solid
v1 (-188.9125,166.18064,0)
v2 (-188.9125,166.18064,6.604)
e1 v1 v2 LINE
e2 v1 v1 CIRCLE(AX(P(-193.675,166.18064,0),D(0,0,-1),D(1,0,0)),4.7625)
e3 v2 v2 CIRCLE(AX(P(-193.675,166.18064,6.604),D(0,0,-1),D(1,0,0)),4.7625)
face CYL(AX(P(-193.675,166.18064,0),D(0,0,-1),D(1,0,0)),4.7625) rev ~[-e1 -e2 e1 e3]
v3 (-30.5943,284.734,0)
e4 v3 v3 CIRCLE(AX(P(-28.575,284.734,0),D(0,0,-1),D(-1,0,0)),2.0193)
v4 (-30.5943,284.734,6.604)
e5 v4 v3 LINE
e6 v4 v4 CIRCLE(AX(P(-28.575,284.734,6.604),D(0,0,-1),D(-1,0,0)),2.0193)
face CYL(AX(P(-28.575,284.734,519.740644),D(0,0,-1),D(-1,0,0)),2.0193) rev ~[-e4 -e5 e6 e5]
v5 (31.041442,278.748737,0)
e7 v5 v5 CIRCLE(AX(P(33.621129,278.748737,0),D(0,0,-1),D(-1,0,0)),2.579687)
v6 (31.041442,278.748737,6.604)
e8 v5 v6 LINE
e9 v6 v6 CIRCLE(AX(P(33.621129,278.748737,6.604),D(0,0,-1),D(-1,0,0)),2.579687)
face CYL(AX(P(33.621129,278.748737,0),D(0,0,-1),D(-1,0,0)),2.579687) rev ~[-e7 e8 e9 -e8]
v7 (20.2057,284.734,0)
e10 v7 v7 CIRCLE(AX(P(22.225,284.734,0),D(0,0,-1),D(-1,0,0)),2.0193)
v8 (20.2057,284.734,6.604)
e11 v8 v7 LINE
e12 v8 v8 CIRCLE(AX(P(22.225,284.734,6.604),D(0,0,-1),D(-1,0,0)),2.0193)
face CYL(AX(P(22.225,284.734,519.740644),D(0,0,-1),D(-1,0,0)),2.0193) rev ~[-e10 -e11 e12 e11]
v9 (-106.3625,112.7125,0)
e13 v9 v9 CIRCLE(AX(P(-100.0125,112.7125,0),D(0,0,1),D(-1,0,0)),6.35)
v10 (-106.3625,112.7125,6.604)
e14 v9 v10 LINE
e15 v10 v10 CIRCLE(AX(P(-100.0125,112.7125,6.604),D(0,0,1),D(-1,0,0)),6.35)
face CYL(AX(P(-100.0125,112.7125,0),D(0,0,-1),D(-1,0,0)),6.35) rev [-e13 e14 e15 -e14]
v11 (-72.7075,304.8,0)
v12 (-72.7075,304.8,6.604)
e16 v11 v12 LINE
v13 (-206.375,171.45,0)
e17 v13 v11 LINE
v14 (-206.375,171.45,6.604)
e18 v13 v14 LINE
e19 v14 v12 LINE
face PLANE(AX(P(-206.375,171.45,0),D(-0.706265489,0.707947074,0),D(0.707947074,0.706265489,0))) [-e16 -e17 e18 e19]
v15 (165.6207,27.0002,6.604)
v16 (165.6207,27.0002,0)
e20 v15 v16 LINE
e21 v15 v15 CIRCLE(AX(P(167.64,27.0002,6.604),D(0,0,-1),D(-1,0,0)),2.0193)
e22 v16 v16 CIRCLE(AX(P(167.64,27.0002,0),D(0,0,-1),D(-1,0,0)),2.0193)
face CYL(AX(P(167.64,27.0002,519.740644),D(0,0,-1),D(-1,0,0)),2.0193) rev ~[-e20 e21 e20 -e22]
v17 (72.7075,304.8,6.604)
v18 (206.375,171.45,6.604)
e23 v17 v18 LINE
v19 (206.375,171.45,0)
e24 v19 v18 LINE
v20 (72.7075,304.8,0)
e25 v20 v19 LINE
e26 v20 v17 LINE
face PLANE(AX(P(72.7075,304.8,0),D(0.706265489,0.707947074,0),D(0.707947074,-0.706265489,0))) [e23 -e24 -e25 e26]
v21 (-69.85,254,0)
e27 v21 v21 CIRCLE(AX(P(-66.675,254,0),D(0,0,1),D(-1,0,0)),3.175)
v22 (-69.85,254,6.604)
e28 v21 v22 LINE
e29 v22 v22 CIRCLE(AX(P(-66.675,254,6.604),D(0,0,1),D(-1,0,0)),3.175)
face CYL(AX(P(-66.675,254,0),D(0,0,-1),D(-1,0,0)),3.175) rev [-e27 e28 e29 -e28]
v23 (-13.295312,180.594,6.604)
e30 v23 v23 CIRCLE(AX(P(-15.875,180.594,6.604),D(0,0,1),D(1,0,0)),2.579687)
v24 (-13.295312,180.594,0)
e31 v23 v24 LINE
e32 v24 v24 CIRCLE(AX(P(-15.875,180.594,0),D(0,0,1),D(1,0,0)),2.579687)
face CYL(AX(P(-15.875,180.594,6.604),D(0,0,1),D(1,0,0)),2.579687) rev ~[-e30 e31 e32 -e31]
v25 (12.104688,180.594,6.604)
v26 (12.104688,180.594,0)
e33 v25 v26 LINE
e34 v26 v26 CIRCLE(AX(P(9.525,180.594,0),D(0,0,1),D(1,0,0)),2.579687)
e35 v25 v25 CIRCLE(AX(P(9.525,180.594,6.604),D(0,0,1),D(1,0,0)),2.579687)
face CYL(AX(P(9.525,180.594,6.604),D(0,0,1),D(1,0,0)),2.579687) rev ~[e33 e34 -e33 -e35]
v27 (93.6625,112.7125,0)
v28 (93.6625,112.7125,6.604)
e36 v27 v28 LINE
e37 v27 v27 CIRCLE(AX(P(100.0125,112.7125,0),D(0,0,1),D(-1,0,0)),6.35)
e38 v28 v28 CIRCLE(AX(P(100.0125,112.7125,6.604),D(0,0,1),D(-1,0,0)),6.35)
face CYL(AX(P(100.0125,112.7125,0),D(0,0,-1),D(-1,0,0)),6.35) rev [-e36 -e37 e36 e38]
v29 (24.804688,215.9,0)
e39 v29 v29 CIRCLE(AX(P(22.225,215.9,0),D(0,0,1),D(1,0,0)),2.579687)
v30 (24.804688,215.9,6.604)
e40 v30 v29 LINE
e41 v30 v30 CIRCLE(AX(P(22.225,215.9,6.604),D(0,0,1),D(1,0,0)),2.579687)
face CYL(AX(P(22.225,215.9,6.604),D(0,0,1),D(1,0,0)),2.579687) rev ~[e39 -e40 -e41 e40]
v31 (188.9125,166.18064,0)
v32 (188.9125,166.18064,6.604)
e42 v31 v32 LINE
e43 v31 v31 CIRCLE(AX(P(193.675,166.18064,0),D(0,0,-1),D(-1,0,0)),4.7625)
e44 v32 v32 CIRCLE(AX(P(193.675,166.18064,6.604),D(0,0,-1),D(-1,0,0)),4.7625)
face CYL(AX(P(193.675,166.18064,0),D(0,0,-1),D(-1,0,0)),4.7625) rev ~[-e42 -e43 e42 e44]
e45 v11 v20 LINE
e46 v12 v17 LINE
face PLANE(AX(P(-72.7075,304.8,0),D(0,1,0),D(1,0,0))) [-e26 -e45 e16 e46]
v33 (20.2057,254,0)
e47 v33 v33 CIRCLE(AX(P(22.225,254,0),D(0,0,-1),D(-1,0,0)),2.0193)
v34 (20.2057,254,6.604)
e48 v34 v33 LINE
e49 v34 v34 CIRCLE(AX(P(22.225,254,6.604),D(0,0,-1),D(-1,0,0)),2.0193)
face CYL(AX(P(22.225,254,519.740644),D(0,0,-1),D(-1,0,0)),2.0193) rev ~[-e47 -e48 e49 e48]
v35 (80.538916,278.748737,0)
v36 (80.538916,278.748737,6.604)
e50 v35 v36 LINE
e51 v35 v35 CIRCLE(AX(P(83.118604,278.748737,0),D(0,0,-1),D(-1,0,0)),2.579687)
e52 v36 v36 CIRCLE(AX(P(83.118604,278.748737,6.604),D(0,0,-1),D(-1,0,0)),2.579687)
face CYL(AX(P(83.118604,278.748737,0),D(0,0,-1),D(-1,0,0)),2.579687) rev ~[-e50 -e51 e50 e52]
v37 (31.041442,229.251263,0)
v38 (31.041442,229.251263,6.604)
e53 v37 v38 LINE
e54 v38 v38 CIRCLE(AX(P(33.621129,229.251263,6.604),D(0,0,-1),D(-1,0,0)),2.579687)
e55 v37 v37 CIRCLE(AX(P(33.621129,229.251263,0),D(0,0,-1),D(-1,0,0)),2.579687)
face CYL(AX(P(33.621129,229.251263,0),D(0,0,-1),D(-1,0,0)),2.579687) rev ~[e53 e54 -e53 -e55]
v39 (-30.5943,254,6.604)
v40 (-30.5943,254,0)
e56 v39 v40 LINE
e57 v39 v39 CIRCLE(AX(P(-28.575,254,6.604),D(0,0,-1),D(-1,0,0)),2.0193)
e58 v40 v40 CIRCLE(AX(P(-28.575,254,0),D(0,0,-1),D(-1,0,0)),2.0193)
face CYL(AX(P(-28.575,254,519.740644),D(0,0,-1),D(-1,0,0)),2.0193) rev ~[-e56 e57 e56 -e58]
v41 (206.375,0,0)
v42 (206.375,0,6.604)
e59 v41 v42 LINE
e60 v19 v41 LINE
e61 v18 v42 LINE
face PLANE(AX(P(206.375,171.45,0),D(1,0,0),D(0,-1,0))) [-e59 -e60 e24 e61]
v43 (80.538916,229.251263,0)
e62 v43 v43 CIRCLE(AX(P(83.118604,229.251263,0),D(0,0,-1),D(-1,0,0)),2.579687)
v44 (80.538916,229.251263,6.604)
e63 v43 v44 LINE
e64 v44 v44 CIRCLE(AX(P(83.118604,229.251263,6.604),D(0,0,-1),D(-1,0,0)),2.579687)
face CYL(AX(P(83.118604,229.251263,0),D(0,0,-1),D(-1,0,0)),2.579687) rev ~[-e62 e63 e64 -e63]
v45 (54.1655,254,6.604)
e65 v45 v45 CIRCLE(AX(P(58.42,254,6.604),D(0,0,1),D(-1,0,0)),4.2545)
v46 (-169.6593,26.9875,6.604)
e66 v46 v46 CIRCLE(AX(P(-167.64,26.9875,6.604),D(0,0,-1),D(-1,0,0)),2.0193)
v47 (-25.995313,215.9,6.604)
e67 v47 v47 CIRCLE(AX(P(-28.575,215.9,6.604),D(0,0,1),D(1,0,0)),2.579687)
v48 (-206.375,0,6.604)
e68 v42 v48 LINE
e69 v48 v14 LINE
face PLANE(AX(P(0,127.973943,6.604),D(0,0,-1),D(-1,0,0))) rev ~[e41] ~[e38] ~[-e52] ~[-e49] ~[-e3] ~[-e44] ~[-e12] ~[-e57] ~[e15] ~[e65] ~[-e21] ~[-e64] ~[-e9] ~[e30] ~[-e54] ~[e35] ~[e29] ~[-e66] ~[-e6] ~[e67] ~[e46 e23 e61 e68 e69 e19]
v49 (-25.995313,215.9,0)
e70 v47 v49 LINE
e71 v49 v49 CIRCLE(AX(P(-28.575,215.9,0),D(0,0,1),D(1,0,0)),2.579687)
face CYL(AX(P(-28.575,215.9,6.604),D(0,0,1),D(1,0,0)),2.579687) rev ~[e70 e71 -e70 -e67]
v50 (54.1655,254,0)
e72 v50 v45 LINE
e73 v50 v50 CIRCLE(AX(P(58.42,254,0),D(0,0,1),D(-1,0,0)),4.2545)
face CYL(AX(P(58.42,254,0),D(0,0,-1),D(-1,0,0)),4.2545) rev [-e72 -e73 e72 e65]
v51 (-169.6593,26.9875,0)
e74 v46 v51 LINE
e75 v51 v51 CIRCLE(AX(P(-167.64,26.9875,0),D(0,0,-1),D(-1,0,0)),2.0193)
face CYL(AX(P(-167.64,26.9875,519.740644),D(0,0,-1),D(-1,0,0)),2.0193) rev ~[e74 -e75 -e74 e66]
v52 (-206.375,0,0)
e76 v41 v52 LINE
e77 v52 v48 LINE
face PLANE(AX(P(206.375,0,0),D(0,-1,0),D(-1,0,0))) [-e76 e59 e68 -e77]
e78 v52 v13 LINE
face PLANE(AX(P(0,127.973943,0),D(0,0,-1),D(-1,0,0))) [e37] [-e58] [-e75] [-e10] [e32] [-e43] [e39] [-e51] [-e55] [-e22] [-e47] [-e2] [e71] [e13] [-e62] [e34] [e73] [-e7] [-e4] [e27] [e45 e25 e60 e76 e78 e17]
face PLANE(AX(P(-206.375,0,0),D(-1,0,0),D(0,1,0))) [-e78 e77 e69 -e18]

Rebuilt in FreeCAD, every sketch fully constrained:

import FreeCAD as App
import Part
import Sketcher
from FreeCAD import Vector
Q = App.Units.Quantity

doc = App.newDocument("Part")
params = doc.addObject("Spreadsheet::Sheet", "Params")
for row, (alias, value) in enumerate([
    ("sketch1_diameter", "0.5 in"),
    ("sketch1_diameter2", "0.25 in"),
    ("sketch1_diameter3", "0.335 in"),
    ("sketch1_width", "16.25 in"),
    ("sketch1_height", "6.75 in"),
    ("pad1_length", "0.26 in"),
    ("sketch2_diameter", "0.159 in"),
    ("hole_diameter", "0.159 in"),
    ("sketch3_diameter", "0.203125 in"),
    ("sketch4_diameter", "0.203125 in"),
    ("sketch5_diameter", "0.375 in"),
], start=1):
    params.set(f"A{row}", alias)
    params.set(f"B{row}", "=" + value)
    params.setAlias(f"B{row}", alias)

body = doc.addObject("PartDesign::Body", "Body")

# Sketch on XY plane
sketch1 = doc.addObject("Sketcher::SketchObject", "Sketch")
body.addObject(sketch1)
sketch1.AttachmentSupport = (doc.XY_Plane, [""])
sketch1.MapMode = "FlatFace"
sketch1.addGeometry([
    Part.LineSegment(Vector(-206.375, 0, 0), Vector(206.375, 0, 0)),  # 0
    Part.LineSegment(Vector(206.375, 0, 0), Vector(206.375, 171.45, 0)),  # 1
    Part.LineSegment(Vector(206.375, 171.45, 0), Vector(72.7075, 304.8, 0)),  # 2
    Part.LineSegment(Vector(72.7075, 304.8, 0), Vector(-72.7075, 304.8, 0)),  # 3
    Part.LineSegment(Vector(-72.7075, 304.8, 0), Vector(-206.375, 171.45, 0)),  # 4
    Part.LineSegment(Vector(-206.375, 171.45, 0), Vector(-206.375, 0, 0)),  # 5
    Part.Circle(Vector(100.0125, 112.7125, 0), Vector(0, 0, 1), 6.35),  # 6
    Part.Circle(Vector(-100.0125, 112.7125, 0), Vector(0, 0, 1), 6.35),  # 7
    Part.Circle(Vector(58.42, 254, 0), Vector(0, 0, 1), 4.2545),  # 8
    Part.Circle(Vector(-66.675, 254, 0), Vector(0, 0, 1), 3.175),  # 9
], False)
sketch1.addConstraint([
    Sketcher.Constraint("Coincident", 0, 2, 1, 1),
    Sketcher.Constraint("Coincident", 1, 2, 2, 1),
    Sketcher.Constraint("Coincident", 2, 2, 3, 1),
    Sketcher.Constraint("Coincident", 3, 2, 4, 1),
    Sketcher.Constraint("Coincident", 4, 2, 5, 1),
    Sketcher.Constraint("Coincident", 5, 2, 0, 1),
    Sketcher.Constraint("Horizontal", 0),
    Sketcher.Constraint("Vertical", 1),
    Sketcher.Constraint("Horizontal", 3),
    Sketcher.Constraint("Vertical", 5),
    Sketcher.Constraint("Equal", 6, 7),
    Sketcher.Constraint("Symmetric", 0, 2, 5, 2, -1, 1),
    Sketcher.Constraint("Symmetric", 6, 3, 7, 3, -2),
    Sketcher.Constraint("Horizontal", 8, 3, 9, 3),
    Sketcher.Constraint("Horizontal", 1, 2, 4, 2),
    Sketcher.Constraint("Equal", 2, 4),
    Sketcher.Constraint("Diameter", 6, Q("0.5 in")),
    Sketcher.Constraint("Diameter", 9, Q("0.25 in")),
    Sketcher.Constraint("Diameter", 8, Q("0.335 in")),
    Sketcher.Constraint("DistanceY", -1, 1, 8, 3, Q("10 in")),
    Sketcher.Constraint("DistanceY", -1, 1, 2, 2, Q("12 in")),
    Sketcher.Constraint("DistanceX", 0, 1, 0, 2, Q("16.25 in")),
    Sketcher.Constraint("DistanceY", 1, 1, 1, 2, Q("6.75 in")),
    Sketcher.Constraint("DistanceX", -1, 1, 8, 3, Q("2.3 in")),
    Sketcher.Constraint("DistanceX", 7, 3, 2, 2, Q("6.8 in")),
    Sketcher.Constraint("DistanceX", 4, 2, 9, 3, Q("5.5 in")),
    Sketcher.Constraint("DistanceX", 3, 2, 3, 1, Q("5.725 in")),
    Sketcher.Constraint("DistanceY", -1, 1, 6, 3, Q("4.4375 in")),
])
sketch1.setExpression("Constraints[16]", "Params.sketch1_diameter")
sketch1.setExpression("Constraints[17]", "Params.sketch1_diameter2")
sketch1.setExpression("Constraints[18]", "Params.sketch1_diameter3")
sketch1.setExpression("Constraints[21]", "Params.sketch1_width")
sketch1.setExpression("Constraints[22]", "Params.sketch1_height")
pad1 = doc.addObject("PartDesign::Pad", "Pad")
body.addObject(pad1)
pad1.Profile = sketch1
pad1.setExpression("Length", "Params.pad1_length")

# Sketch on XY plane
sketch2 = doc.addObject("Sketcher::SketchObject", "Sketch001")
body.addObject(sketch2)
sketch2.AttachmentSupport = (doc.XY_Plane, [""])
sketch2.MapMode = "FlatFace"
sketch2.AttachmentOffset = App.Placement(Vector(0, 0, 0.26 * 25.4), App.Rotation())
sketch2.addGeometry([
    Part.Circle(Vector(-167.64, 26.9875, 0), Vector(0, 0, 1), 2.0193),  # 0
    Part.Circle(Vector(167.64, 27.0002, 0), Vector(0, 0, 1), 2.0193),  # 1
    Part.Circle(Vector(-28.575, 284.734, 0), Vector(0, 0, 1), 2.0193),  # 2
    Part.Circle(Vector(22.225, 284.734, 0), Vector(0, 0, 1), 2.0193),  # 3
    Part.Circle(Vector(-28.575, 254, 0), Vector(0, 0, 1), 2.0193),  # 4
    Part.Circle(Vector(22.225, 254, 0), Vector(0, 0, 1), 2.0193),  # 5
], False)
sketch2.addConstraint([
    Sketcher.Constraint("Equal", 0, 1),
    Sketcher.Constraint("Equal", 1, 2),
    Sketcher.Constraint("Equal", 2, 3),
    Sketcher.Constraint("Equal", 3, 4),
    Sketcher.Constraint("Equal", 4, 5),
    Sketcher.Constraint("Horizontal", 2, 3, 3, 3),
    Sketcher.Constraint("Horizontal", 4, 3, 5, 3),
    Sketcher.Constraint("Vertical", 2, 3, 4, 3),
    Sketcher.Constraint("Vertical", 3, 3, 5, 3),
    Sketcher.Constraint("Diameter", 0, Q("0.159 in")),
    Sketcher.Constraint("DistanceY", -1, 1, 4, 3, Q("10 in")),
    Sketcher.Constraint("DistanceX", 2, 3, 3, 3, Q("2 in")),
    Sketcher.Constraint("DistanceX", 0, 3, -1, 1, Q("6.6 in")),
    Sketcher.Constraint("DistanceX", -1, 1, 1, 3, Q("6.6 in")),
    Sketcher.Constraint("DistanceY", -1, 1, 2, 3, Q("11.21 in")),
    Sketcher.Constraint("DistanceY", -1, 1, 0, 3, Q("1.0625 in")),
    Sketcher.Constraint("DistanceY", -1, 1, 1, 3, Q("1.063 in")),
    Sketcher.Constraint("DistanceX", 2, 3, -1, 1, Q("1.125 in")),
])
sketch2.setExpression("Constraints[9]", "Params.sketch2_diameter")
doc.recompute()
hole = doc.addObject("PartDesign::Hole", "Hole")
body.addObject(hole)
hole.Profile = sketch2
hole.ThreadType = "None"
hole.setExpression("Diameter", "Params.hole_diameter")
hole.DepthType = "ThroughAll"

# Sketch on XY plane
sketch3 = doc.addObject("Sketcher::SketchObject", "Sketch002")
body.addObject(sketch3)
sketch3.AttachmentSupport = (doc.XY_Plane, [""])
sketch3.MapMode = "FlatFace"
sketch3.addGeometry([
    Part.Circle(Vector(33.621129, 278.748737, 0), Vector(0, 0, 1), 2.579687),
    Part.Circle(Vector(33.621129, 229.251263, 0), Vector(0, 0, 1), 2.579687),
    Part.Circle(Vector(83.118604, 229.251263, 0), Vector(0, 0, 1), 2.579687),
    Part.Circle(Vector(83.118604, 278.748737, 0), Vector(0, 0, 1), 2.579687),
], False)
sketch3.addConstraint([
    Sketcher.Constraint("Equal", 0, 1),
    Sketcher.Constraint("Equal", 1, 2),
    Sketcher.Constraint("Equal", 2, 3),
    Sketcher.Constraint("Horizontal", 1, 3, 2, 3),
    Sketcher.Constraint("Horizontal", 0, 3, 3, 3),
    Sketcher.Constraint("Vertical", 0, 3, 1, 3),
    Sketcher.Constraint("Vertical", 2, 3, 3, 3),
    Sketcher.Constraint("Diameter", 0, Q("0.203125 in")),
    Sketcher.Constraint("DistanceX", -1, 1, 0, 3, Q("33.621129 mm")),
    Sketcher.Constraint("DistanceY", -1, 1, 0, 3, Q("278.748737 mm")),
    Sketcher.Constraint("DistanceY", -1, 1, 1, 3, Q("229.251263 mm")),
    Sketcher.Constraint("DistanceX", -1, 1, 2, 3, Q("83.118604 mm")),
])
sketch3.setExpression("Constraints[7]", "Params.sketch3_diameter")
pocket1 = doc.addObject("PartDesign::Pocket", "Pocket")
body.addObject(pocket1)
pocket1.Profile = sketch3
pocket1.Type = "ThroughAll"
pocket1.Reversed = True

# Sketch on XY plane
sketch4 = doc.addObject("Sketcher::SketchObject", "Sketch003")
body.addObject(sketch4)
sketch4.AttachmentSupport = (doc.XY_Plane, [""])
sketch4.MapMode = "FlatFace"
sketch4.AttachmentOffset = App.Placement(Vector(0, 0, 0.26 * 25.4), App.Rotation())
sketch4.addGeometry([
    Part.Circle(Vector(-28.575, 215.9, 0), Vector(0, 0, 1), 2.579687),
    Part.Circle(Vector(22.225, 215.9, 0), Vector(0, 0, 1), 2.579687),
    Part.Circle(Vector(-15.875, 180.594, 0), Vector(0, 0, 1), 2.579687),
    Part.Circle(Vector(9.525, 180.594, 0), Vector(0, 0, 1), 2.579687),
], False)
sketch4.addConstraint([
    Sketcher.Constraint("Equal", 0, 1),
    Sketcher.Constraint("Equal", 1, 2),
    Sketcher.Constraint("Equal", 2, 3),
    Sketcher.Constraint("Horizontal", 0, 3, 1, 3),
    Sketcher.Constraint("Horizontal", 2, 3, 3, 3),
    Sketcher.Constraint("Diameter", 0, Q("0.203125 in")),
    Sketcher.Constraint("DistanceX", 0, 3, 1, 3, Q("2 in")),
    Sketcher.Constraint("DistanceX", 2, 3, 3, 3, Q("1 in")),
    Sketcher.Constraint("DistanceY", -1, 1, 0, 3, Q("8.5 in")),
    Sketcher.Constraint("DistanceX", 0, 3, 2, 3, Q("0.5 in")),
    Sketcher.Constraint("DistanceY", -1, 1, 2, 3, Q("7.11 in")),
    Sketcher.Constraint("DistanceX", 0, 3, -1, 1, Q("1.125 in")),
])
sketch4.setExpression("Constraints[5]", "Params.sketch4_diameter")
pocket2 = doc.addObject("PartDesign::Pocket", "Pocket001")
body.addObject(pocket2)
pocket2.Profile = sketch4
pocket2.Type = "ThroughAll"

# Sketch on XY plane
sketch5 = doc.addObject("Sketcher::SketchObject", "Sketch004")
body.addObject(sketch5)
sketch5.AttachmentSupport = (doc.XY_Plane, [""])
sketch5.MapMode = "FlatFace"
sketch5.addGeometry([
    Part.Circle(Vector(193.675, 166.18064, 0), Vector(0, 0, 1), 4.7625),
    Part.Circle(Vector(-193.675, 166.18064, 0), Vector(0, 0, 1), 4.7625),
], False)
sketch5.addConstraint([
    Sketcher.Constraint("Equal", 0, 1),
    Sketcher.Constraint("Symmetric", 0, 3, 1, 3, -2),
    Sketcher.Constraint("Diameter", 0, Q("0.375 in")),
    Sketcher.Constraint("DistanceX", 1, 3, 0, 3, Q("15.25 in")),
    Sketcher.Constraint("DistanceY", -1, 1, 0, 3, Q("166.18064 mm")),
])
sketch5.setExpression("Constraints[2]", "Params.sketch5_diameter")
pocket3 = doc.addObject("PartDesign::Pocket", "Pocket002")
body.addObject(pocket3)
pocket3.Profile = sketch5
pocket3.Type = "ThroughAll"
pocket3.Reversed = True

doc.recompute()
